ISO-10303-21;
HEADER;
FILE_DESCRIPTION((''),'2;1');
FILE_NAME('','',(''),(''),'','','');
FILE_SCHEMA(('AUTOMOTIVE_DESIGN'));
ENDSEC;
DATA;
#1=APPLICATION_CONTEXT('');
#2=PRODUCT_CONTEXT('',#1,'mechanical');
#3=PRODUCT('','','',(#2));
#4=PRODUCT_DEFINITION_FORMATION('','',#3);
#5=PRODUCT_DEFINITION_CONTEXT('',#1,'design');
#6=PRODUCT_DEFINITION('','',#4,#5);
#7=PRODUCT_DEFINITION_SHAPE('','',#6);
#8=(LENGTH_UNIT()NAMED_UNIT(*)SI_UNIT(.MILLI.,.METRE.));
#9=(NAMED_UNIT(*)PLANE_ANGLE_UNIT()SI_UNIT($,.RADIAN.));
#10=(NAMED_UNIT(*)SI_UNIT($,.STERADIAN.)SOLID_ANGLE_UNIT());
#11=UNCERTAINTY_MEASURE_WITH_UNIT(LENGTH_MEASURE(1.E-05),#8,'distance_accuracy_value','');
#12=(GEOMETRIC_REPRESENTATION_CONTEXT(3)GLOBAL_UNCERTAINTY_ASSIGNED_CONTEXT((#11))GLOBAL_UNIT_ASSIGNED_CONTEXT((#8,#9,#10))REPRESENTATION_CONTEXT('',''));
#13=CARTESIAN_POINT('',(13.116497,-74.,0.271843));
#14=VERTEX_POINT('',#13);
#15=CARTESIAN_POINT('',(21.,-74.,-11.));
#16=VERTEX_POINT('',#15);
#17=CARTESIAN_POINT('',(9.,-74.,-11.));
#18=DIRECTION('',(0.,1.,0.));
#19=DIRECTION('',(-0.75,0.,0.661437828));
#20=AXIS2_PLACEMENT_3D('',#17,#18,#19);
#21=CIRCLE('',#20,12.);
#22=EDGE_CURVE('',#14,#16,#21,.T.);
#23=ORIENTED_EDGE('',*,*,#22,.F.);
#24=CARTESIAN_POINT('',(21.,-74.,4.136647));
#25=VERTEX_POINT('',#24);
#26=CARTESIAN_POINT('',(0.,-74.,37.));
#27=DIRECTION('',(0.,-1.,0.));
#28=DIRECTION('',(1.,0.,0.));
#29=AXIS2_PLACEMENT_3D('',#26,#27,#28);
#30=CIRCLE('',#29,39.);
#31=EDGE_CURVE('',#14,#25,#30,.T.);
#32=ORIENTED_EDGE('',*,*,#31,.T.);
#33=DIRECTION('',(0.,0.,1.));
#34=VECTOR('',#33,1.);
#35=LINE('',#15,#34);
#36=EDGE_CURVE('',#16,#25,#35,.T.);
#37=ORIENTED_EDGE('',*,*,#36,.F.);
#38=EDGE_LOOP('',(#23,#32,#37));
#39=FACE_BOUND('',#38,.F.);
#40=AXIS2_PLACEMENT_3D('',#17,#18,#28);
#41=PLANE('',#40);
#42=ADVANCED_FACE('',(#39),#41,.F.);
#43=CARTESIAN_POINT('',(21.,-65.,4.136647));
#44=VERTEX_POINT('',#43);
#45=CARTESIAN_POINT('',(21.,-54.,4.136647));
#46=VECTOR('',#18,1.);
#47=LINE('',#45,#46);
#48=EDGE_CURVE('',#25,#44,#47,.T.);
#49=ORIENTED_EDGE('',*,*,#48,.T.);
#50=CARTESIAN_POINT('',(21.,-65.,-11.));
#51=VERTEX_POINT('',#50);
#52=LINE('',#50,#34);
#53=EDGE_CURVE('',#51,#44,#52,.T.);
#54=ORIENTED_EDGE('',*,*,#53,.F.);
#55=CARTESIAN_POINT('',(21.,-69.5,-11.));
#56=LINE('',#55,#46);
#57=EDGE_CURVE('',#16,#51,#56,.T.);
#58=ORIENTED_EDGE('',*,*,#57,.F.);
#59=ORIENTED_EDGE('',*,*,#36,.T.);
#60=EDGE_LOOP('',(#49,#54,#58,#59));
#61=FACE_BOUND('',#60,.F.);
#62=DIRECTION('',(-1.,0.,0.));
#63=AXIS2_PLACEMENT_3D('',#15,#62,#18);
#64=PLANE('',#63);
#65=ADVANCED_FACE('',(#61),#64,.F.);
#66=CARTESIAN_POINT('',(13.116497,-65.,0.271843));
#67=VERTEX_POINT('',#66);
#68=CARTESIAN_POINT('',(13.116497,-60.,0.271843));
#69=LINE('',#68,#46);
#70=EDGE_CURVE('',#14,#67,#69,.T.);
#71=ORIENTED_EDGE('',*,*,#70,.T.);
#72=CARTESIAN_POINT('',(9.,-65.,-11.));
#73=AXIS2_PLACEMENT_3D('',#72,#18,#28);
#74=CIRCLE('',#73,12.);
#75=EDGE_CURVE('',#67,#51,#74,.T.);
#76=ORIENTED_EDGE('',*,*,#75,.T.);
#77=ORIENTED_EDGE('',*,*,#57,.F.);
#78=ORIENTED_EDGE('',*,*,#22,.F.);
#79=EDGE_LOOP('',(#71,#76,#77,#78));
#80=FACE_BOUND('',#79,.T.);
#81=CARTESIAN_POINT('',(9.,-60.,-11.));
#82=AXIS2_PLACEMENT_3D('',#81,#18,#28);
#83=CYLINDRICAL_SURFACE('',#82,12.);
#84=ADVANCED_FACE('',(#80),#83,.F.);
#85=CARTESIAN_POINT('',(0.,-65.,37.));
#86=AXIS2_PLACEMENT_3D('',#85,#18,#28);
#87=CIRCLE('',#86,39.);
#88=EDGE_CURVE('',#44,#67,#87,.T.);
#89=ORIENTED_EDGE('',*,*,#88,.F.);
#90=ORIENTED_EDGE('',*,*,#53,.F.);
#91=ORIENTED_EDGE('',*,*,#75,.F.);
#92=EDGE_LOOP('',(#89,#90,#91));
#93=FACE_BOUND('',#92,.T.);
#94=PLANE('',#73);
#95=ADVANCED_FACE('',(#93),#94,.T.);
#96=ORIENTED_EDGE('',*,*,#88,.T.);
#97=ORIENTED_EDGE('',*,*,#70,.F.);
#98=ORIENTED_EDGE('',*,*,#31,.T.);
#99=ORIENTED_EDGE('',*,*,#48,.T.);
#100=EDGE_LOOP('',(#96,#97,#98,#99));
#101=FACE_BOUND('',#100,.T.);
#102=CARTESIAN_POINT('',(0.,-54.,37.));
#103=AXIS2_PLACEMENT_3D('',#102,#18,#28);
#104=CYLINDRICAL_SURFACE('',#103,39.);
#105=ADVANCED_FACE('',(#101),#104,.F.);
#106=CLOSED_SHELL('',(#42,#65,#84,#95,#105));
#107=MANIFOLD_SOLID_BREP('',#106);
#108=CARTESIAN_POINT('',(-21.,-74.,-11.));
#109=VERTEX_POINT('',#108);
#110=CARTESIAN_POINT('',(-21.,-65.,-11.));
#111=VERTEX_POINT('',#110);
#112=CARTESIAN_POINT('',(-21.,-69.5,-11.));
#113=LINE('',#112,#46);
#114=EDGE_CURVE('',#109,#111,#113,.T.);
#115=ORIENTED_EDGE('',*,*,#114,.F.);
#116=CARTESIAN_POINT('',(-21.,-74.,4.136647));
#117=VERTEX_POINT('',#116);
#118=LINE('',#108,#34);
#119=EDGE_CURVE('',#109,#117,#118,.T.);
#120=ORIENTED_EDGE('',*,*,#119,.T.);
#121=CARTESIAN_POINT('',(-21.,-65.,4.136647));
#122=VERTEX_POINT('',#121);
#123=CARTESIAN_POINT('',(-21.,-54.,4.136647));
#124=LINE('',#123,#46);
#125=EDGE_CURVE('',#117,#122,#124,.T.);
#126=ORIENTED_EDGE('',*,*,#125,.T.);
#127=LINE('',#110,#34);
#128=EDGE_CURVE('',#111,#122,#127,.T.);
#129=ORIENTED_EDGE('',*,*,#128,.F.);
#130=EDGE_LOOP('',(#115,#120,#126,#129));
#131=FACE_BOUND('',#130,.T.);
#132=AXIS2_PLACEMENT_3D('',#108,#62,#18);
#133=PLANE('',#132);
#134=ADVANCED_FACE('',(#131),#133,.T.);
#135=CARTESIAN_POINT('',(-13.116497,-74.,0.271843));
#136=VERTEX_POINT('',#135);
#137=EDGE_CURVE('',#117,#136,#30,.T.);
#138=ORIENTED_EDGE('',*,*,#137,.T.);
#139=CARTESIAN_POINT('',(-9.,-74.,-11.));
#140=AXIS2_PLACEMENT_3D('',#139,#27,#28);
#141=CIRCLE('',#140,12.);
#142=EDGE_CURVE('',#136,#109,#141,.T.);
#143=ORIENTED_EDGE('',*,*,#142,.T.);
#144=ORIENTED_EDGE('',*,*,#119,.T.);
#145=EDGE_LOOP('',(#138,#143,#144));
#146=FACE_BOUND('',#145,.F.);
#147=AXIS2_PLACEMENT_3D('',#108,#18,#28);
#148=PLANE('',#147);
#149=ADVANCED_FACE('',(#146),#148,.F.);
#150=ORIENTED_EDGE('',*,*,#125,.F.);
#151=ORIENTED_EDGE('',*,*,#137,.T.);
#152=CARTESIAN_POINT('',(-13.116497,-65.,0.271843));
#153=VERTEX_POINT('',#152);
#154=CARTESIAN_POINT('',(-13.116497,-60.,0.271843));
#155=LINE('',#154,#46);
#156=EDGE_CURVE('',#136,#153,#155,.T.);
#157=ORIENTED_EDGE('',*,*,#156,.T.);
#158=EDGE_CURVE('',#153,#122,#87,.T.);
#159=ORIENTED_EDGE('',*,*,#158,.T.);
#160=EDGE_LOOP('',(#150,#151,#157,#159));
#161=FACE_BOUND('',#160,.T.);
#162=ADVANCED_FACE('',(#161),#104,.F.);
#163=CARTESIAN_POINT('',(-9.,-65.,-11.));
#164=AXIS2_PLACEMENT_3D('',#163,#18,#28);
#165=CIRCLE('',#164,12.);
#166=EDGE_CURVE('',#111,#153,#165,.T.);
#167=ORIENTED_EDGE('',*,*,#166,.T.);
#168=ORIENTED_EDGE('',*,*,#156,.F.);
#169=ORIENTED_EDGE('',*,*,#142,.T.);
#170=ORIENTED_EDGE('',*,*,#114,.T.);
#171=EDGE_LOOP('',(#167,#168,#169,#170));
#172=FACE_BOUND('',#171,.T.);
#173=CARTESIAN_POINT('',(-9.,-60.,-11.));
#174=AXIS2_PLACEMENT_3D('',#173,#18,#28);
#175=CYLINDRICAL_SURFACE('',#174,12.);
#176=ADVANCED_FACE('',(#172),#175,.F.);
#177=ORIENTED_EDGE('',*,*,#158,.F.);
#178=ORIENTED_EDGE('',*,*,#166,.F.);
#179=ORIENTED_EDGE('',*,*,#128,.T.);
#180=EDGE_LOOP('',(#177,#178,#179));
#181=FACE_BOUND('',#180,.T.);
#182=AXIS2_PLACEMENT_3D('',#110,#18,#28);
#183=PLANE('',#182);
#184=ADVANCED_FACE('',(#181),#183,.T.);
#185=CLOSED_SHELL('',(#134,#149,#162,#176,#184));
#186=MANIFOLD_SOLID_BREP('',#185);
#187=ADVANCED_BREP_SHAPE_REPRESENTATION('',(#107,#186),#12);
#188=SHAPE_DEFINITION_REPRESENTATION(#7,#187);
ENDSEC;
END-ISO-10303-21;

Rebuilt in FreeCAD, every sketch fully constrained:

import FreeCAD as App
import Part
import Sketcher


def add_polygon(sketch, points):
    """Adds a closed chain of lines whose ends are joined by coincident constraints."""
    first, n = sketch.GeometryCount, len(points)
    for a, b in zip(points, points[1:] + points[:1]):
        sketch.addGeometry(Part.LineSegment(App.Vector(*a, 0), App.Vector(*b, 0)), False)
    for i in range(n):
        sketch.addConstraint(Sketcher.Constraint("Coincident", first + i, 2, first + (i + 1) % n, 1))

doc = App.newDocument("Part")
body = doc.addObject("PartDesign::Body", "Body")

# Sketch on XZ plane
sketch1 = body.newObject("Sketcher::SketchObject", "Sketch")
sketch1.AttachmentSupport = (doc.getObject("XZ_Plane"), [""])
sketch1.MapMode = "FlatFace"
sketch1.AttachmentOffset = App.Placement(App.Vector(0, 0, 54), App.Rotation())
sketch1.addGeometry(Part.Circle(App.Vector(0, 37, 0), App.Vector(0, 0, 1), 39), False)
sketch1.addConstraint(Sketcher.Constraint("PointOnObject", 0, 3, -2))
sketch1.addConstraint(Sketcher.Constraint("Diameter", 0, 78.0))
sketch1.addConstraint(Sketcher.Constraint("DistanceY", -1, 1, 0, 3, 37.0))
pad1 = body.newObject("PartDesign::Pad", "Pad")
pad1.Profile = sketch1
pad1.Length = 20
body2 = doc.addObject("PartDesign::Body", "Body001")

# Sketch on XZ plane
sketch2 = body2.newObject("Sketcher::SketchObject", "Sketch001")
sketch2.AttachmentSupport = (doc.getObject("XZ_Plane001"), [""])
sketch2.MapMode = "FlatFace"
sketch2.AttachmentOffset = App.Placement(App.Vector(0, 0, 60), App.Rotation())
sketch2.addGeometry(Part.Circle(App.Vector(-9, -11, 0), App.Vector(0, 0, 1), 12), False)
sketch2.addConstraint(Sketcher.Constraint("Diameter", 0, 24.0))
sketch2.addConstraint(Sketcher.Constraint("DistanceX", 0, 3, -1, 1, 9.0))
sketch2.addConstraint(Sketcher.Constraint("DistanceY", 0, 3, -1, 1, 11.0))
pad2 = body2.newObject("PartDesign::Pad", "Pad001")
pad2.Profile = sketch2
pad2.Length = 14
body3 = doc.addObject("PartDesign::Body", "Body002")

# Sketch on XZ plane
sketch3 = body3.newObject("Sketcher::SketchObject", "Sketch002")
sketch3.AttachmentSupport = (doc.getObject("XZ_Plane002"), [""])
sketch3.MapMode = "FlatFace"
sketch3.AttachmentOffset = App.Placement(App.Vector(0, 0, 60), App.Rotation())
sketch3.addGeometry(Part.Circle(App.Vector(9, -11, 0), App.Vector(0, 0, 1), 12), False)
sketch3.addConstraint(Sketcher.Constraint("Diameter", 0, 24.0))
sketch3.addConstraint(Sketcher.Constraint("DistanceX", -1, 1, 0, 3, 9.0))
sketch3.addConstraint(Sketcher.Constraint("DistanceY", 0, 3, -1, 1, 11.0))
pad3 = body3.newObject("PartDesign::Pad", "Pad002")
pad3.Profile = sketch3
pad3.Length = 14
doc.recompute()

boolean = body3.newObject("PartDesign::Boolean", "Boolean")
boolean.Type = "Fuse"
boolean.addObjects([body2])
body4 = doc.addObject("PartDesign::Body", "Body003")

# Sketch on XY plane
sketch4 = body4.newObject("Sketcher::SketchObject", "Sketch003")
sketch4.AttachmentSupport = (doc.getObject("XY_Plane003"), [""])
sketch4.MapMode = "FlatFace"
sketch4.AttachmentOffset = App.Placement(App.Vector(0, 0, -11), App.Rotation())
add_polygon(sketch4, [(-21, -65), (-21, -74), (-9, -74), (-9, -65)])  # lines 0-3
sketch4.addConstraint(Sketcher.Constraint("Vertical", 0))
sketch4.addConstraint(Sketcher.Constraint("Horizontal", 1))
sketch4.addConstraint(Sketcher.Constraint("Vertical", 2))
sketch4.addConstraint(Sketcher.Constraint("Horizontal", 3))
sketch4.addConstraint(Sketcher.Constraint("DistanceX", 1, 1, 1, 2, 12.0))
sketch4.addConstraint(Sketcher.Constraint("DistanceY", 0, 2, 0, 1, 9.0))
sketch4.addConstraint(Sketcher.Constraint("DistanceX", 0, 2, -1, 1, 21.0))
sketch4.addConstraint(Sketcher.Constraint("DistanceY", 0, 2, -1, 1, 74.0))
pad4 = body4.newObject("PartDesign::Pad", "Pad003")
pad4.Profile = sketch4
pad4.Length = 16
body5 = doc.addObject("PartDesign::Body", "Body004")
body5.AllowCompound = True

# Sketch on XY plane
sketch5 = body5.newObject("Sketcher::SketchObject", "Sketch004")
sketch5.AttachmentSupport = (doc.getObject("XY_Plane004"), [""])
sketch5.MapMode = "FlatFace"
sketch5.AttachmentOffset = App.Placement(App.Vector(0, 0, -11), App.Rotation())
add_polygon(sketch5, [(9, -65), (9, -74), (21, -74), (21, -65)])  # lines 0-3
sketch5.addConstraint(Sketcher.Constraint("Vertical", 0))
sketch5.addConstraint(Sketcher.Constraint("Horizontal", 1))
sketch5.addConstraint(Sketcher.Constraint("Vertical", 2))
sketch5.addConstraint(Sketcher.Constraint("Horizontal", 3))
sketch5.addConstraint(Sketcher.Constraint("DistanceX", 1, 1, 1, 2, 12.0))
sketch5.addConstraint(Sketcher.Constraint("DistanceY", 0, 2, 0, 1, 9.0))
sketch5.addConstraint(Sketcher.Constraint("DistanceX", -1, 1, 0, 2, 9.0))
sketch5.addConstraint(Sketcher.Constraint("DistanceY", 0, 2, -1, 1, 74.0))
pad5 = body5.newObject("PartDesign::Pad", "Pad004")
pad5.Profile = sketch5
pad5.Length = 16
doc.recompute()

boolean2 = body5.newObject("PartDesign::Boolean", "Boolean001")
boolean2.Type = "Fuse"
boolean2.addObjects([body4])
doc.recompute()

boolean3 = body5.newObject("PartDesign::Boolean", "Boolean002")
boolean3.Type = "Cut"
boolean3.addObjects([body3])
doc.recompute()

boolean4 = body5.newObject("PartDesign::Boolean", "Boolean003")
boolean4.Type = "Cut"
boolean4.addObjects([body])

doc.recompute()
